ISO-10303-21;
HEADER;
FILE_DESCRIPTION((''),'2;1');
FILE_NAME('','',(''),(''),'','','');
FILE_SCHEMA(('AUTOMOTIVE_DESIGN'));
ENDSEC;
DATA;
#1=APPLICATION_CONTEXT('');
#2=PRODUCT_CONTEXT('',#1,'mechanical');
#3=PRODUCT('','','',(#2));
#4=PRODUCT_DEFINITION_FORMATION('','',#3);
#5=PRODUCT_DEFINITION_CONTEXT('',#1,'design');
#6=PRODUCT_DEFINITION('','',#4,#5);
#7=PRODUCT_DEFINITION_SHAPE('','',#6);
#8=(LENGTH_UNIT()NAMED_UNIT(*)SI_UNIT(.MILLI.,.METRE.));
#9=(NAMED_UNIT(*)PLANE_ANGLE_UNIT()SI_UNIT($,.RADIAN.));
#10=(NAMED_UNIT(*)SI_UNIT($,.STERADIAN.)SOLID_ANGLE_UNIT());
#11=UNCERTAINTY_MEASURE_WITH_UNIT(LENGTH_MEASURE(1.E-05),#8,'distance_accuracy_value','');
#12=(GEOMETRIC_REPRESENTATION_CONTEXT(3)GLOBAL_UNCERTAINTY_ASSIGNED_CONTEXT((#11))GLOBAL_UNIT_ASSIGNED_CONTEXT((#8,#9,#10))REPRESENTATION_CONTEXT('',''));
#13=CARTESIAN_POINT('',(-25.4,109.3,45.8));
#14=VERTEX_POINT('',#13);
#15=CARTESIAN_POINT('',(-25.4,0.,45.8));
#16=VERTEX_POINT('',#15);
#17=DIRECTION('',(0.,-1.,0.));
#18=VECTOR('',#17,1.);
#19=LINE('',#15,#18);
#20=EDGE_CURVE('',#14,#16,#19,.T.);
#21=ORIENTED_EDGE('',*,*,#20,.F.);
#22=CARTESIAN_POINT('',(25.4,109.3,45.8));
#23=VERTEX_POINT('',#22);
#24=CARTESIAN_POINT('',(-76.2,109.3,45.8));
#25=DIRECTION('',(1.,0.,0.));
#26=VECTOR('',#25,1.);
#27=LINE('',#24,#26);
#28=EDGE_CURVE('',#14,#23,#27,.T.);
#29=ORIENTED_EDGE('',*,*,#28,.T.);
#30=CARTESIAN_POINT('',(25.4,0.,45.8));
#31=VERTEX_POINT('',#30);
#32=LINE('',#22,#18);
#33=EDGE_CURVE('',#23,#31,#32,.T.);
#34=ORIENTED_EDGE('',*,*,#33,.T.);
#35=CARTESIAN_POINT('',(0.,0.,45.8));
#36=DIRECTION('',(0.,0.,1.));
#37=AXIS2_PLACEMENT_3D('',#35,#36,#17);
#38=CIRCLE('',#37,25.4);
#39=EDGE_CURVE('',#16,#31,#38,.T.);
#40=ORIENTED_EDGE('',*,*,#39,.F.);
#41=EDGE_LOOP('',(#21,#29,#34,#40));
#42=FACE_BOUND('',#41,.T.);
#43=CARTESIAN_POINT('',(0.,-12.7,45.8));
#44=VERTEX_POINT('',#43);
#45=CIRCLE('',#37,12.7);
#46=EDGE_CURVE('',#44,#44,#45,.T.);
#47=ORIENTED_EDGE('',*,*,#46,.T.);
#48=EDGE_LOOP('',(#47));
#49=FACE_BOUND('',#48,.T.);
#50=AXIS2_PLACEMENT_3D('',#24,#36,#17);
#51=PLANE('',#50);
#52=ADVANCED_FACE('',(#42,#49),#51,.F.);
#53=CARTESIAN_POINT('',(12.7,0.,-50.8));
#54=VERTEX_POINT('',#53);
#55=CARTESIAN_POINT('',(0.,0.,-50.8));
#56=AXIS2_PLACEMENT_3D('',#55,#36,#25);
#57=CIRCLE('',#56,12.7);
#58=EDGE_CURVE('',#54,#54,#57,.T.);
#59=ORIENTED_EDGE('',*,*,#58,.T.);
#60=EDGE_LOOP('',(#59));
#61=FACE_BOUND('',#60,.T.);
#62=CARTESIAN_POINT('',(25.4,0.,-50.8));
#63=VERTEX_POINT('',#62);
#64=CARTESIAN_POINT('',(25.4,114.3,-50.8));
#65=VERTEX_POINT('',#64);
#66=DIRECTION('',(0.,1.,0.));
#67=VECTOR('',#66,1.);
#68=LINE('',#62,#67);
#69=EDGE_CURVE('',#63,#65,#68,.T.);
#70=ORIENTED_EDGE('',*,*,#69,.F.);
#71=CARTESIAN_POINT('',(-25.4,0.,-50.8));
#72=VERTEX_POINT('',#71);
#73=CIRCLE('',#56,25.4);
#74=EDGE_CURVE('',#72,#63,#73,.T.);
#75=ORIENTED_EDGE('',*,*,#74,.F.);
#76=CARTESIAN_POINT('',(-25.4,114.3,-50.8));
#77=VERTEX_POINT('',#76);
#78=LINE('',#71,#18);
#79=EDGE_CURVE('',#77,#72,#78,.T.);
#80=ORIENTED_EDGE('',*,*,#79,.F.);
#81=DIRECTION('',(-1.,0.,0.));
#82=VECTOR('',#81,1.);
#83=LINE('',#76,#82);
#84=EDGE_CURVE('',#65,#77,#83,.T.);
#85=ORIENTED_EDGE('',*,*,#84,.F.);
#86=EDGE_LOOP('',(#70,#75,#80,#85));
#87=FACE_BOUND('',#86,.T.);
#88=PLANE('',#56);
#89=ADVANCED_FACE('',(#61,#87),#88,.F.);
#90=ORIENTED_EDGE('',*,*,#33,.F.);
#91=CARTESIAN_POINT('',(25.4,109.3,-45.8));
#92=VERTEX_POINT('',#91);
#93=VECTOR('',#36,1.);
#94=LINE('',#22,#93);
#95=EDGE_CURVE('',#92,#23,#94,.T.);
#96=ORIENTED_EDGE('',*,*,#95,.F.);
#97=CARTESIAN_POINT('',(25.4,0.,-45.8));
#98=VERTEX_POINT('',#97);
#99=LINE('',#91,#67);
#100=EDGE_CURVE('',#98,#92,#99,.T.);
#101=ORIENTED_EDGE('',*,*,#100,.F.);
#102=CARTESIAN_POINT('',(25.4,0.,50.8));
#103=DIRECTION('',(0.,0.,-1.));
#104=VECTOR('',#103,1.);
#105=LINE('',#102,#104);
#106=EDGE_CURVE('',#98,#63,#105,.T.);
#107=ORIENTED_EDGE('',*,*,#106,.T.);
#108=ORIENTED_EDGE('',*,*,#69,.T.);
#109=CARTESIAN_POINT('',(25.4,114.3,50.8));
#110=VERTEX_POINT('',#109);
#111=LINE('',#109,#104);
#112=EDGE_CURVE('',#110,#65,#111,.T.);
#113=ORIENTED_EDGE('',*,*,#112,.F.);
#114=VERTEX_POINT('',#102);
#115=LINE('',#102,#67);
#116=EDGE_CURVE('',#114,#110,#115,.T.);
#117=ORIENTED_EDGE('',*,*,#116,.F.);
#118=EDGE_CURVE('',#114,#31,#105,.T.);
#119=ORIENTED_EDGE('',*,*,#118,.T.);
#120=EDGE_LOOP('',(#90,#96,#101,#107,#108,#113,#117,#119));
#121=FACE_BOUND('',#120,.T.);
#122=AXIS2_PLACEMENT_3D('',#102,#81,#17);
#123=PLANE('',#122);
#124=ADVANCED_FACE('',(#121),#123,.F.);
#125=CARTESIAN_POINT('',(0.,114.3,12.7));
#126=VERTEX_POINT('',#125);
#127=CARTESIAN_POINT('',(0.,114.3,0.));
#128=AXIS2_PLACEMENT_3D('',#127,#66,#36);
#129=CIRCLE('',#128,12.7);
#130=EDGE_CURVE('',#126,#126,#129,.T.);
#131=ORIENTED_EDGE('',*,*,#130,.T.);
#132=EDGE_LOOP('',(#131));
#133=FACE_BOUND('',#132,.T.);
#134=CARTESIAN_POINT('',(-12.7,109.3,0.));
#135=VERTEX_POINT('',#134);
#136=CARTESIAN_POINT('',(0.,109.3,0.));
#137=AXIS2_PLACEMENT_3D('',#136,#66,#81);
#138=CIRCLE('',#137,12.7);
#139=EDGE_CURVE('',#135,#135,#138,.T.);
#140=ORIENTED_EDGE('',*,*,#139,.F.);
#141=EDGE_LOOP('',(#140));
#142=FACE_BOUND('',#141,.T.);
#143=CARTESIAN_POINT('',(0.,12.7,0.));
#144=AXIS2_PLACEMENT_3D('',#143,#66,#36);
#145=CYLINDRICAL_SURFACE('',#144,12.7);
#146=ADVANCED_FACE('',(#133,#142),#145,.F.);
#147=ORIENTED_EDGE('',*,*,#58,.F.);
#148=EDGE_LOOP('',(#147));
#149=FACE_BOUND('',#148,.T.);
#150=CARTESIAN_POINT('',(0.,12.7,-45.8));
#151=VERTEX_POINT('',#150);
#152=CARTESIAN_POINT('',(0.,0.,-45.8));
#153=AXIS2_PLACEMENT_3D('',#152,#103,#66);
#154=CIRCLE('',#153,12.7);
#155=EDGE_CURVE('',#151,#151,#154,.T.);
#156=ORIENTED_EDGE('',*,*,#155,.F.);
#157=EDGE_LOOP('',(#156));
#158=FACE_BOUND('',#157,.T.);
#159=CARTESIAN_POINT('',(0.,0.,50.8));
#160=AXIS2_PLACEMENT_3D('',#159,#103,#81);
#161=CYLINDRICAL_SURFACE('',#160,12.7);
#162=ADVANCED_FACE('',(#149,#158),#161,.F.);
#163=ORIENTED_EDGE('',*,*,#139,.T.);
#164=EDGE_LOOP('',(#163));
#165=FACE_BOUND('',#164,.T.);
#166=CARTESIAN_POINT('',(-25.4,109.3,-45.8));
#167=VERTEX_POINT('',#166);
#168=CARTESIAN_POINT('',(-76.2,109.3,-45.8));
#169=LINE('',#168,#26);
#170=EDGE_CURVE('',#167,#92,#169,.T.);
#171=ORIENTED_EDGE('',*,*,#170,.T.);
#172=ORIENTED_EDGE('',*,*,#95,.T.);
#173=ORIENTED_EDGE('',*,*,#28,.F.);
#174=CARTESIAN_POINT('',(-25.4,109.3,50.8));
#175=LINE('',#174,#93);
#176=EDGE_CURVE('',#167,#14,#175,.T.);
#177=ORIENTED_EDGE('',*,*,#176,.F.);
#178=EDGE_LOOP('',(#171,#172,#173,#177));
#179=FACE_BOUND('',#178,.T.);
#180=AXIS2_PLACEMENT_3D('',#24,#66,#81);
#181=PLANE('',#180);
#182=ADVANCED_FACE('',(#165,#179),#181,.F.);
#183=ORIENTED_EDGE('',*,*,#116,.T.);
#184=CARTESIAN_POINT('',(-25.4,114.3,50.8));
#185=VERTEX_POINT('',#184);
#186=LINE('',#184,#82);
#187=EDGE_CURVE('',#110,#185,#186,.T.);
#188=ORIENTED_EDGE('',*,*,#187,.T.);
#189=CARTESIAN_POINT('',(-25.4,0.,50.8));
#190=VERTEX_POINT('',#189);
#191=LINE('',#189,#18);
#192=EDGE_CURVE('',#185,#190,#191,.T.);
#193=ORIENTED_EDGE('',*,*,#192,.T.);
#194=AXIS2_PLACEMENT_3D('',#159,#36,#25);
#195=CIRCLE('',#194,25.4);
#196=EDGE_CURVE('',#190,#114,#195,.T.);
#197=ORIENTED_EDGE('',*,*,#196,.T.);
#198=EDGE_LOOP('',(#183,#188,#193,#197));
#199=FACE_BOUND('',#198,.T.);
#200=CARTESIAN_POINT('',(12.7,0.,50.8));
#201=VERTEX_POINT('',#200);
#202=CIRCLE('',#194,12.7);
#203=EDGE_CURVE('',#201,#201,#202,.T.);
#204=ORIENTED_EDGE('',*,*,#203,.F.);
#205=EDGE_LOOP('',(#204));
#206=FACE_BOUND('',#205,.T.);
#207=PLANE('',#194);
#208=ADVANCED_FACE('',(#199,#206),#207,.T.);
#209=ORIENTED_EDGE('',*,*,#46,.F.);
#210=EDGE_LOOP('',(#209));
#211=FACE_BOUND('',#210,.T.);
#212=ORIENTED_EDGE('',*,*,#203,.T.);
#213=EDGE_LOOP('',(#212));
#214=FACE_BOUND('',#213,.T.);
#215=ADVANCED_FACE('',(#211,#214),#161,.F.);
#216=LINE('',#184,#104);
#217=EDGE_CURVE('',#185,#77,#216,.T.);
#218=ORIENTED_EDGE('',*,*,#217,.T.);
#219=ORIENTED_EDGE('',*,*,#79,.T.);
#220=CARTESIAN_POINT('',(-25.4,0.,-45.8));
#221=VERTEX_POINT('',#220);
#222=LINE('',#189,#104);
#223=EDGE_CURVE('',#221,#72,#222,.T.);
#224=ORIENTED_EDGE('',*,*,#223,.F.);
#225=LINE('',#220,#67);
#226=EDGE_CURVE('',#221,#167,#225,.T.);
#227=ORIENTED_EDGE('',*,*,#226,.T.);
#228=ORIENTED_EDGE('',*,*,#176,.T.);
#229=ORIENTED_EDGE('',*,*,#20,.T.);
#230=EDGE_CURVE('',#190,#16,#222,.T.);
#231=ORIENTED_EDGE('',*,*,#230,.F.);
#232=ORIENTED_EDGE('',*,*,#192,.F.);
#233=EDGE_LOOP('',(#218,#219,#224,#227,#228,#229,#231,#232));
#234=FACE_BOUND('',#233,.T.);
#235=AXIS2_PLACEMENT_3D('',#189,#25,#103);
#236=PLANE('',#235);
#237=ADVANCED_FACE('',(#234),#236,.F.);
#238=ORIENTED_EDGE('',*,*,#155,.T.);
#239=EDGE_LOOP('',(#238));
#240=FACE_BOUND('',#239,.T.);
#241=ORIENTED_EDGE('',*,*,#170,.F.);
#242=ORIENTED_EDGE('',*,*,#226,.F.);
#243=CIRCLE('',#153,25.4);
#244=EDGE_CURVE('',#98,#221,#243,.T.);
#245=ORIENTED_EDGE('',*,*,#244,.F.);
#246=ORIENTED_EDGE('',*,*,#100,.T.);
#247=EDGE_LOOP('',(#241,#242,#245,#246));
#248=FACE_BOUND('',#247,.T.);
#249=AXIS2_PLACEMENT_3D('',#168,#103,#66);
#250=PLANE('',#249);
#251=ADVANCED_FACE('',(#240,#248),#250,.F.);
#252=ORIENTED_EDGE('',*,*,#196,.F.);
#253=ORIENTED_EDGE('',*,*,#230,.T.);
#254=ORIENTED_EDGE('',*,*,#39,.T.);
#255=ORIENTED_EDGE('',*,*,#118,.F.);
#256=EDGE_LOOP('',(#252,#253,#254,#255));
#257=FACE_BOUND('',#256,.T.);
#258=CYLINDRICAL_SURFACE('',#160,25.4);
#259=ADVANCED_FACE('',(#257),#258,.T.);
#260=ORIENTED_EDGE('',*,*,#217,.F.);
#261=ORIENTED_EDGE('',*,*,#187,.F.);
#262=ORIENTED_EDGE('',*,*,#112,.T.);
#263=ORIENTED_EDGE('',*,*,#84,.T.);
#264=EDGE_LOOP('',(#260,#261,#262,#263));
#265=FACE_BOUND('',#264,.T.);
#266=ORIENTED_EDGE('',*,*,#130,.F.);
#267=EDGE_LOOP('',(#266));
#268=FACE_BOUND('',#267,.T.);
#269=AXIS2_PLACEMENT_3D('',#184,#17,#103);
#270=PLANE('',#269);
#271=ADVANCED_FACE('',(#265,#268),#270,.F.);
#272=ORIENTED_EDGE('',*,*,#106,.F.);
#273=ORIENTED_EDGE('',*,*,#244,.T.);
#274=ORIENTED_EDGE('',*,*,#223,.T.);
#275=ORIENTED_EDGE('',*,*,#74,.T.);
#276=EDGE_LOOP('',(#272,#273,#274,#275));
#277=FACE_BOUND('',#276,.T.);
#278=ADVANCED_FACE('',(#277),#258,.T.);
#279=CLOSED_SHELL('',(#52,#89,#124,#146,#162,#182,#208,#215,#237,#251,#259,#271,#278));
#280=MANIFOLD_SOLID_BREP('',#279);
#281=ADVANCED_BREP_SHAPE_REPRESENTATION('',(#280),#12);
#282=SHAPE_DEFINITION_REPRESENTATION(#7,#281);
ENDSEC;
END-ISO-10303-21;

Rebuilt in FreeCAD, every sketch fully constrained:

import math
import FreeCAD as App
import Part
import Sketcher
Q = App.Units.Quantity

doc = App.newDocument("Part")
body = doc.addObject("PartDesign::Body", "Body")

# Sketch on XY plane
sketch1 = body.newObject("Sketcher::SketchObject", "Sketch")
sketch1.AttachmentSupport = (doc.getObject("XY_Plane"), [""])
sketch1.MapMode = "FlatFace"
sketch1.addGeometry([
    Part.LineSegment(App.Vector(-25, 114, 0), App.Vector(-25, 0, 0)),  # 0
    Part.ArcOfCircle(Part.Circle(App.Vector(0, 0, 0), App.Vector(0, 0, 1), 25), math.radians(180), math.radians(360)),  # 1
    Part.LineSegment(App.Vector(25, 0, 0), App.Vector(25, 114, 0)),  # 2
    Part.LineSegment(App.Vector(25, 114, 0), App.Vector(-25, 114, 0)),  # 3
    Part.Circle(App.Vector(0, 0, 0), App.Vector(0, 0, 1), 13),  # 4
], False)
sketch1.addConstraint([
    Sketcher.Constraint("Tangent", 0, 2, 1, 1),
    Sketcher.Constraint("Tangent", 1, 2, 2, 1),
    Sketcher.Constraint("Coincident", 2, 2, 3, 1),
    Sketcher.Constraint("Coincident", 3, 2, 0, 1),
    Sketcher.Constraint("Vertical", 0),
    Sketcher.Constraint("Vertical", 2),
    Sketcher.Constraint("Horizontal", 3),
    Sketcher.Constraint("Coincident", 1, 3, -1, 1),
    Sketcher.Constraint("Coincident", 4, 3, -1, 1),
    Sketcher.Constraint("Diameter", 4, Q("1 in")),
    Sketcher.Constraint("Radius", 1, Q("1 in")),
    Sketcher.Constraint("DistanceY", 0, 2, 0, 1, Q("4.5 in")),
])
pad1 = body.newObject("PartDesign::Pad", "Pad")
pad1.Profile = sketch1
pad1.Length = Q("4 in")
pad1.Midplane = True

# Sketch on YZ plane
sketch2 = body.newObject("Sketcher::SketchObject", "Sketch001")
sketch2.AttachmentSupport = (doc.getObject("YZ_Plane"), [""])
sketch2.MapMode = "FlatFace"
sketch2.AttachmentOffset = App.Placement(App.Vector(0, 0, 1 * 25.4), App.Rotation())
sketch2.addGeometry([
    Part.LineSegment(App.Vector(109, 46, 0), App.Vector(-25, 46, 0)),
    Part.LineSegment(App.Vector(-25, 46, 0), App.Vector(-25, -46, 0)),
    Part.LineSegment(App.Vector(-25, -46, 0), App.Vector(109, -46, 0)),
    Part.LineSegment(App.Vector(109, -46, 0), App.Vector(109, 46, 0)),
], False)
sketch2.addConstraint([
    Sketcher.Constraint("Coincident", 0, 2, 1, 1),
    Sketcher.Constraint("Coincident", 1, 2, 2, 1),
    Sketcher.Constraint("Coincident", 2, 2, 3, 1),
    Sketcher.Constraint("Coincident", 3, 2, 0, 1),
    Sketcher.Constraint("Horizontal", 0),
    Sketcher.Constraint("Vertical", 1),
    Sketcher.Constraint("Horizontal", 2),
    Sketcher.Constraint("Vertical", 3),
    Sketcher.Constraint("DistanceX", 0, 2, -1, 1, Q("1 in")),
    Sketcher.Constraint("DistanceX", 0, 2, 0, 1, Q("134.7 mm")),
    Sketcher.Constraint("DistanceY", 1, 2, 1, 1, Q("91.6 mm")),
    Sketcher.Constraint("DistanceY", -1, 1, 0, 2, Q("45.8 mm")),
])
pocket1 = body.newObject("PartDesign::Pocket", "Pocket")
pocket1.Profile = sketch2
pocket1.Length = Q("4 in")

# Sketch on XZ plane
sketch3 = body.newObject("Sketcher::SketchObject", "Sketch002")
sketch3.AttachmentSupport = (doc.getObject("XZ_Plane"), [""])
sketch3.MapMode = "FlatFace"
sketch3.AttachmentOffset = App.Placement(App.Vector(0, 0, -4.5 * 25.4), App.Rotation())
sketch3.addGeometry(Part.Circle(App.Vector(0, 0, 0), App.Vector(0, 0, 1), 13), False)
sketch3.addConstraint([
    Sketcher.Constraint("Coincident", 0, 3, -1, 1),
    Sketcher.Constraint("Diameter", 0, Q("1 in")),
])
pocket2 = body.newObject("PartDesign::Pocket", "Pocket001")
pocket2.Profile = sketch3
pocket2.Length = Q("4 in")
pocket2.Reversed = True

doc.recompute()
